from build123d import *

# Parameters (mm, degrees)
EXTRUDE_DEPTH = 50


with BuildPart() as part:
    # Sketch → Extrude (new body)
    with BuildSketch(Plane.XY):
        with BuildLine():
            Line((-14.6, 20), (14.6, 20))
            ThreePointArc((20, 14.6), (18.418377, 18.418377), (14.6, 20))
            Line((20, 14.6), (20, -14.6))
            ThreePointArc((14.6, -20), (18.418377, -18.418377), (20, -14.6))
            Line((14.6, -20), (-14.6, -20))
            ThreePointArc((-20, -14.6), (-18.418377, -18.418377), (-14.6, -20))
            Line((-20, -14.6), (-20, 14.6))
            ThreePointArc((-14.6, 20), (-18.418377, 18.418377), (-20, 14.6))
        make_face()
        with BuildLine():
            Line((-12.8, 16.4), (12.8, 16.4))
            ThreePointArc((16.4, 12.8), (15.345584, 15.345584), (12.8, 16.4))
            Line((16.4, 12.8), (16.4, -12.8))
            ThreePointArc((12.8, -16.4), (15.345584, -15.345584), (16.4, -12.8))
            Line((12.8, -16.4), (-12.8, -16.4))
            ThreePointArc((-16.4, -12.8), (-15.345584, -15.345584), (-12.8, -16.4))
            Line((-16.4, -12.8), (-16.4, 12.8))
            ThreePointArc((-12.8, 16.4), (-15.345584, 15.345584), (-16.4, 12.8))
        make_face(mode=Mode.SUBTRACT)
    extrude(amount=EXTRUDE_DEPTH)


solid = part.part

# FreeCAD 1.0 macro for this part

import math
import FreeCAD as App
import Part
import Sketcher

V = App.Vector

doc = App.newDocument("Part")
body = doc.addObject("PartDesign::Body", "Body")

sketch1 = body.newObject("Sketcher::SketchObject", "Sketch")
sketch1.AttachmentSupport = (doc.getObject("XY_Plane"), [""])
sketch1.MapMode = "FlatFace"
sketch1.addGeometry([
    Part.LineSegment(V(14.6, 20, 0), V(-14.6, 20, 0)),
    Part.ArcOfCircle(Part.Circle(V(-14.6, 14.6, 0), V(0, 0, 1), 5.4), math.radians(90), math.radians(180)),
    Part.LineSegment(V(-20, 14.6, 0), V(-20, -14.6, 0)),
    Part.ArcOfCircle(Part.Circle(V(-14.6, -14.6, 0), V(0, 0, 1), 5.4), math.radians(180), math.radians(270)),
    Part.LineSegment(V(-14.6, -20, 0), V(14.6, -20, 0)),
    Part.ArcOfCircle(Part.Circle(V(14.6, -14.6, 0), V(0, 0, 1), 5.4), math.radians(-90), math.radians(0)),
    Part.LineSegment(V(20, -14.6, 0), V(20, 14.6, 0)),
    Part.ArcOfCircle(Part.Circle(V(14.6, 14.6, 0), V(0, 0, 1), 5.4), math.radians(0), math.radians(90)),
    Part.LineSegment(V(-12.8, 16.4, 0), V(12.8, 16.4, 0)),
    Part.ArcOfCircle(Part.Circle(V(12.8, 12.8, 0), V(0, 0, 1), 3.6), math.radians(0), math.radians(90)),
    Part.LineSegment(V(16.4, 12.8, 0), V(16.4, -12.8, 0)),
    Part.ArcOfCircle(Part.Circle(V(12.8, -12.8, 0), V(0, 0, 1), 3.6), math.radians(-90), math.radians(0)),
    Part.LineSegment(V(12.8, -16.4, 0), V(-12.8, -16.4, 0)),
    Part.ArcOfCircle(Part.Circle(V(-12.8, -12.8, 0), V(0, 0, 1), 3.6), math.radians(-180), math.radians(-90)),
    Part.LineSegment(V(-16.4, -12.8, 0), V(-16.4, 12.8, 0)),
    Part.ArcOfCircle(Part.Circle(V(-12.8, 12.8, 0), V(0, 0, 1), 3.6), math.radians(90), math.radians(180)),
], False)
sketch1.addConstraint([
    Sketcher.Constraint("Tangent", 0, 2, 1, 1),
    Sketcher.Constraint("Tangent", 1, 2, 2, 1),
    Sketcher.Constraint("Tangent", 2, 2, 3, 1),
    Sketcher.Constraint("Tangent", 3, 2, 4, 1),
    Sketcher.Constraint("Tangent", 4, 2, 5, 1),
    Sketcher.Constraint("Tangent", 5, 2, 6, 1),
    Sketcher.Constraint("Tangent", 6, 2, 7, 1),
    Sketcher.Constraint("Tangent", 7, 2, 0, 1),
    Sketcher.Constraint("Tangent", 8, 2, 9, 2),
    Sketcher.Constraint("Tangent", 9, 1, 10, 1),
    Sketcher.Constraint("Tangent", 10, 2, 11, 2),
    Sketcher.Constraint("Tangent", 11, 1, 12, 1),
    Sketcher.Constraint("Tangent", 12, 2, 13, 2),
    Sketcher.Constraint("Tangent", 13, 1, 14, 1),
    Sketcher.Constraint("Tangent", 14, 2, 15, 2),
    Sketcher.Constraint("Tangent", 15, 1, 8, 1),
    Sketcher.Constraint("Horizontal", 0),
    Sketcher.Constraint("Vertical", 2),
    Sketcher.Constraint("Horizontal", 4),
    Sketcher.Constraint("Vertical", 6),
    Sketcher.Constraint("Horizontal", 8),
    Sketcher.Constraint("Vertical", 10),
    Sketcher.Constraint("Horizontal", 12),
    Sketcher.Constraint("Vertical", 14),
    Sketcher.Constraint("Equal", 1, 3),
    Sketcher.Constraint("Equal", 3, 5),
    Sketcher.Constraint("Equal", 5, 7),
    Sketcher.Constraint("Equal", 9, 11),
    Sketcher.Constraint("Equal", 11, 13),
    Sketcher.Constraint("Equal", 13, 15),
    Sketcher.Constraint("Symmetric", 1, 3, 5, 3, -1, 1),
    Sketcher.Constraint("Symmetric", 9, 3, 13, 3, -1, 1),
    Sketcher.Constraint("Equal", 4, 2),
    Sketcher.Constraint("Equal", 12, 10),
    Sketcher.Constraint("Radius", 1, 5.399999),
    Sketcher.Constraint("Radius", 9, 3.600001),
    Sketcher.Constraint("DistanceX", 0, 2, 0, 1, 29.2),
    Sketcher.Constraint("DistanceX", 8, 1, 8, 2, 25.6),
])
pad1 = body.newObject("PartDesign::Pad", "Pad")
pad1.Profile = sketch1
pad1.Length = 50

doc.recompute()
